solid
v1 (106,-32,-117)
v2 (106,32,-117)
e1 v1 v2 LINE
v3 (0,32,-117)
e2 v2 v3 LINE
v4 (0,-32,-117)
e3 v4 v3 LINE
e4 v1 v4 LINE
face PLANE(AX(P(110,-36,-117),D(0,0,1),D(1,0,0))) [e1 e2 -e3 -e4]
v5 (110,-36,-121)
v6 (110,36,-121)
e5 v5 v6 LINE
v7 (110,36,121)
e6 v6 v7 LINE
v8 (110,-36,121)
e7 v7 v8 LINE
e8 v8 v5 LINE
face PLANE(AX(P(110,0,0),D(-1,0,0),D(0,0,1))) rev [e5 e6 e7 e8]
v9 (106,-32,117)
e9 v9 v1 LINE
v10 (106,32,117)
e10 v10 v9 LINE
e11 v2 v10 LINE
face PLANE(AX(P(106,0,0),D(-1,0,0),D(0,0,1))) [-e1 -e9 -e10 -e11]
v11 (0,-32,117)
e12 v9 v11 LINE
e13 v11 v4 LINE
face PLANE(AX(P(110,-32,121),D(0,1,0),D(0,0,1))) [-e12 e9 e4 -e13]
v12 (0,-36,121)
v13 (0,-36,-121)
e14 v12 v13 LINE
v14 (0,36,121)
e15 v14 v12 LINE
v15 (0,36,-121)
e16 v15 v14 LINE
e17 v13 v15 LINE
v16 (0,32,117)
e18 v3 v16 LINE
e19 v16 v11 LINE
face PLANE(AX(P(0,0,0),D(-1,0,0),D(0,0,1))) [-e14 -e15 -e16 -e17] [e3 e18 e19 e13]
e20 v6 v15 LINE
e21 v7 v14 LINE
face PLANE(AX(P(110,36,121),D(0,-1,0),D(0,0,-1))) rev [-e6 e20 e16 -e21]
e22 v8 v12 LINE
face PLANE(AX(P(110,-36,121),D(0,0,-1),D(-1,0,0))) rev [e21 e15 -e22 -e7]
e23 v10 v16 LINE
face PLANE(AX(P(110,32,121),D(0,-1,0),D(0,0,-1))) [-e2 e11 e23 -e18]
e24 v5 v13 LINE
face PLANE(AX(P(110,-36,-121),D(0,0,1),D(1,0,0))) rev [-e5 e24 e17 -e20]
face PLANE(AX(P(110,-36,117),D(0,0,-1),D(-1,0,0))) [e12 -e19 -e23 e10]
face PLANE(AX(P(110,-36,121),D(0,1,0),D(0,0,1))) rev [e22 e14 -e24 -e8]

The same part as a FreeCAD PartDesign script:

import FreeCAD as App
import Part
import Sketcher
from FreeCAD import Vector
Q = App.Units.Quantity


def faces_at(feature, points):
    """Names of the faces that lie closest to the given points."""
    faces = feature.Shape.Faces
    near = lambda p: min(range(len(faces)), key=lambda i: faces[i].distToShape(Part.Vertex(*p))[0])
    return sorted({f"Face{near(p) + 1}" for p in points})


def add_polygon(sketch, points):
    """Adds a closed chain of lines whose ends are joined by coincident constraints."""
    first, n = sketch.GeometryCount, len(points)
    for a, b in zip(points, points[1:] + points[:1]):
        sketch.addGeometry(Part.LineSegment(App.Vector(*a, 0), App.Vector(*b, 0)), False)
    for i in range(n):
        sketch.addConstraint(Sketcher.Constraint("Coincident", first + i, 2, first + (i + 1) % n, 1))

doc = App.newDocument("Part")
params = doc.addObject("Spreadsheet::Sheet", "Params")
for row, (alias, value) in enumerate([
    ("sketch1_width", "72 mm"),
    ("sketch1_height", "242 mm"),
    ("pad1_length", "110 mm"),
    ("thickness_wall", "4 mm"),
], start=1):
    params.set(f"A{row}", alias)
    params.set(f"B{row}", "=" + value)
    params.setAlias(f"B{row}", alias)

body = doc.addObject("PartDesign::Body", "Body")

# Sketch on YZ plane
sketch1 = doc.addObject("Sketcher::SketchObject", "Sketch")
body.addObject(sketch1)
sketch1.AttachmentSupport = (doc.YZ_Plane, [""])
sketch1.MapMode = "FlatFace"
add_polygon(sketch1, [(36, 121), (-36, 121), (-36, -121), (36, -121)])  # lines 0-3
sketch1.addConstraint([
    Sketcher.Constraint("Horizontal", 0),
    Sketcher.Constraint("Vertical", 1),
    Sketcher.Constraint("Horizontal", 2),
    Sketcher.Constraint("Vertical", 3),
    Sketcher.Constraint("Symmetric", 0, 2, 2, 2, -1, 1),
    Sketcher.Constraint("DistanceX", 0, 2, 0, 1, Q("72 mm")),
    Sketcher.Constraint("DistanceY", 1, 2, 1, 1, Q("242 mm")),
])
sketch1.setExpression("Constraints[9]", "Params.sketch1_width")
sketch1.setExpression("Constraints[10]", "Params.sketch1_height")
pad1 = doc.addObject("PartDesign::Pad", "Pad")
body.addObject(pad1)
pad1.Profile = sketch1
pad1.setExpression("Length", "Params.pad1_length")
doc.recompute()

thickness = doc.addObject("PartDesign::Thickness", "Thickness")
body.addObject(thickness)
thickness.Base = (pad1, faces_at(pad1, [(0, 0, 0)]))
thickness.setExpression("Value", "Params.thickness_wall")
thickness.Reversed = True
thickness.Join = "Intersection"

doc.recompute()
